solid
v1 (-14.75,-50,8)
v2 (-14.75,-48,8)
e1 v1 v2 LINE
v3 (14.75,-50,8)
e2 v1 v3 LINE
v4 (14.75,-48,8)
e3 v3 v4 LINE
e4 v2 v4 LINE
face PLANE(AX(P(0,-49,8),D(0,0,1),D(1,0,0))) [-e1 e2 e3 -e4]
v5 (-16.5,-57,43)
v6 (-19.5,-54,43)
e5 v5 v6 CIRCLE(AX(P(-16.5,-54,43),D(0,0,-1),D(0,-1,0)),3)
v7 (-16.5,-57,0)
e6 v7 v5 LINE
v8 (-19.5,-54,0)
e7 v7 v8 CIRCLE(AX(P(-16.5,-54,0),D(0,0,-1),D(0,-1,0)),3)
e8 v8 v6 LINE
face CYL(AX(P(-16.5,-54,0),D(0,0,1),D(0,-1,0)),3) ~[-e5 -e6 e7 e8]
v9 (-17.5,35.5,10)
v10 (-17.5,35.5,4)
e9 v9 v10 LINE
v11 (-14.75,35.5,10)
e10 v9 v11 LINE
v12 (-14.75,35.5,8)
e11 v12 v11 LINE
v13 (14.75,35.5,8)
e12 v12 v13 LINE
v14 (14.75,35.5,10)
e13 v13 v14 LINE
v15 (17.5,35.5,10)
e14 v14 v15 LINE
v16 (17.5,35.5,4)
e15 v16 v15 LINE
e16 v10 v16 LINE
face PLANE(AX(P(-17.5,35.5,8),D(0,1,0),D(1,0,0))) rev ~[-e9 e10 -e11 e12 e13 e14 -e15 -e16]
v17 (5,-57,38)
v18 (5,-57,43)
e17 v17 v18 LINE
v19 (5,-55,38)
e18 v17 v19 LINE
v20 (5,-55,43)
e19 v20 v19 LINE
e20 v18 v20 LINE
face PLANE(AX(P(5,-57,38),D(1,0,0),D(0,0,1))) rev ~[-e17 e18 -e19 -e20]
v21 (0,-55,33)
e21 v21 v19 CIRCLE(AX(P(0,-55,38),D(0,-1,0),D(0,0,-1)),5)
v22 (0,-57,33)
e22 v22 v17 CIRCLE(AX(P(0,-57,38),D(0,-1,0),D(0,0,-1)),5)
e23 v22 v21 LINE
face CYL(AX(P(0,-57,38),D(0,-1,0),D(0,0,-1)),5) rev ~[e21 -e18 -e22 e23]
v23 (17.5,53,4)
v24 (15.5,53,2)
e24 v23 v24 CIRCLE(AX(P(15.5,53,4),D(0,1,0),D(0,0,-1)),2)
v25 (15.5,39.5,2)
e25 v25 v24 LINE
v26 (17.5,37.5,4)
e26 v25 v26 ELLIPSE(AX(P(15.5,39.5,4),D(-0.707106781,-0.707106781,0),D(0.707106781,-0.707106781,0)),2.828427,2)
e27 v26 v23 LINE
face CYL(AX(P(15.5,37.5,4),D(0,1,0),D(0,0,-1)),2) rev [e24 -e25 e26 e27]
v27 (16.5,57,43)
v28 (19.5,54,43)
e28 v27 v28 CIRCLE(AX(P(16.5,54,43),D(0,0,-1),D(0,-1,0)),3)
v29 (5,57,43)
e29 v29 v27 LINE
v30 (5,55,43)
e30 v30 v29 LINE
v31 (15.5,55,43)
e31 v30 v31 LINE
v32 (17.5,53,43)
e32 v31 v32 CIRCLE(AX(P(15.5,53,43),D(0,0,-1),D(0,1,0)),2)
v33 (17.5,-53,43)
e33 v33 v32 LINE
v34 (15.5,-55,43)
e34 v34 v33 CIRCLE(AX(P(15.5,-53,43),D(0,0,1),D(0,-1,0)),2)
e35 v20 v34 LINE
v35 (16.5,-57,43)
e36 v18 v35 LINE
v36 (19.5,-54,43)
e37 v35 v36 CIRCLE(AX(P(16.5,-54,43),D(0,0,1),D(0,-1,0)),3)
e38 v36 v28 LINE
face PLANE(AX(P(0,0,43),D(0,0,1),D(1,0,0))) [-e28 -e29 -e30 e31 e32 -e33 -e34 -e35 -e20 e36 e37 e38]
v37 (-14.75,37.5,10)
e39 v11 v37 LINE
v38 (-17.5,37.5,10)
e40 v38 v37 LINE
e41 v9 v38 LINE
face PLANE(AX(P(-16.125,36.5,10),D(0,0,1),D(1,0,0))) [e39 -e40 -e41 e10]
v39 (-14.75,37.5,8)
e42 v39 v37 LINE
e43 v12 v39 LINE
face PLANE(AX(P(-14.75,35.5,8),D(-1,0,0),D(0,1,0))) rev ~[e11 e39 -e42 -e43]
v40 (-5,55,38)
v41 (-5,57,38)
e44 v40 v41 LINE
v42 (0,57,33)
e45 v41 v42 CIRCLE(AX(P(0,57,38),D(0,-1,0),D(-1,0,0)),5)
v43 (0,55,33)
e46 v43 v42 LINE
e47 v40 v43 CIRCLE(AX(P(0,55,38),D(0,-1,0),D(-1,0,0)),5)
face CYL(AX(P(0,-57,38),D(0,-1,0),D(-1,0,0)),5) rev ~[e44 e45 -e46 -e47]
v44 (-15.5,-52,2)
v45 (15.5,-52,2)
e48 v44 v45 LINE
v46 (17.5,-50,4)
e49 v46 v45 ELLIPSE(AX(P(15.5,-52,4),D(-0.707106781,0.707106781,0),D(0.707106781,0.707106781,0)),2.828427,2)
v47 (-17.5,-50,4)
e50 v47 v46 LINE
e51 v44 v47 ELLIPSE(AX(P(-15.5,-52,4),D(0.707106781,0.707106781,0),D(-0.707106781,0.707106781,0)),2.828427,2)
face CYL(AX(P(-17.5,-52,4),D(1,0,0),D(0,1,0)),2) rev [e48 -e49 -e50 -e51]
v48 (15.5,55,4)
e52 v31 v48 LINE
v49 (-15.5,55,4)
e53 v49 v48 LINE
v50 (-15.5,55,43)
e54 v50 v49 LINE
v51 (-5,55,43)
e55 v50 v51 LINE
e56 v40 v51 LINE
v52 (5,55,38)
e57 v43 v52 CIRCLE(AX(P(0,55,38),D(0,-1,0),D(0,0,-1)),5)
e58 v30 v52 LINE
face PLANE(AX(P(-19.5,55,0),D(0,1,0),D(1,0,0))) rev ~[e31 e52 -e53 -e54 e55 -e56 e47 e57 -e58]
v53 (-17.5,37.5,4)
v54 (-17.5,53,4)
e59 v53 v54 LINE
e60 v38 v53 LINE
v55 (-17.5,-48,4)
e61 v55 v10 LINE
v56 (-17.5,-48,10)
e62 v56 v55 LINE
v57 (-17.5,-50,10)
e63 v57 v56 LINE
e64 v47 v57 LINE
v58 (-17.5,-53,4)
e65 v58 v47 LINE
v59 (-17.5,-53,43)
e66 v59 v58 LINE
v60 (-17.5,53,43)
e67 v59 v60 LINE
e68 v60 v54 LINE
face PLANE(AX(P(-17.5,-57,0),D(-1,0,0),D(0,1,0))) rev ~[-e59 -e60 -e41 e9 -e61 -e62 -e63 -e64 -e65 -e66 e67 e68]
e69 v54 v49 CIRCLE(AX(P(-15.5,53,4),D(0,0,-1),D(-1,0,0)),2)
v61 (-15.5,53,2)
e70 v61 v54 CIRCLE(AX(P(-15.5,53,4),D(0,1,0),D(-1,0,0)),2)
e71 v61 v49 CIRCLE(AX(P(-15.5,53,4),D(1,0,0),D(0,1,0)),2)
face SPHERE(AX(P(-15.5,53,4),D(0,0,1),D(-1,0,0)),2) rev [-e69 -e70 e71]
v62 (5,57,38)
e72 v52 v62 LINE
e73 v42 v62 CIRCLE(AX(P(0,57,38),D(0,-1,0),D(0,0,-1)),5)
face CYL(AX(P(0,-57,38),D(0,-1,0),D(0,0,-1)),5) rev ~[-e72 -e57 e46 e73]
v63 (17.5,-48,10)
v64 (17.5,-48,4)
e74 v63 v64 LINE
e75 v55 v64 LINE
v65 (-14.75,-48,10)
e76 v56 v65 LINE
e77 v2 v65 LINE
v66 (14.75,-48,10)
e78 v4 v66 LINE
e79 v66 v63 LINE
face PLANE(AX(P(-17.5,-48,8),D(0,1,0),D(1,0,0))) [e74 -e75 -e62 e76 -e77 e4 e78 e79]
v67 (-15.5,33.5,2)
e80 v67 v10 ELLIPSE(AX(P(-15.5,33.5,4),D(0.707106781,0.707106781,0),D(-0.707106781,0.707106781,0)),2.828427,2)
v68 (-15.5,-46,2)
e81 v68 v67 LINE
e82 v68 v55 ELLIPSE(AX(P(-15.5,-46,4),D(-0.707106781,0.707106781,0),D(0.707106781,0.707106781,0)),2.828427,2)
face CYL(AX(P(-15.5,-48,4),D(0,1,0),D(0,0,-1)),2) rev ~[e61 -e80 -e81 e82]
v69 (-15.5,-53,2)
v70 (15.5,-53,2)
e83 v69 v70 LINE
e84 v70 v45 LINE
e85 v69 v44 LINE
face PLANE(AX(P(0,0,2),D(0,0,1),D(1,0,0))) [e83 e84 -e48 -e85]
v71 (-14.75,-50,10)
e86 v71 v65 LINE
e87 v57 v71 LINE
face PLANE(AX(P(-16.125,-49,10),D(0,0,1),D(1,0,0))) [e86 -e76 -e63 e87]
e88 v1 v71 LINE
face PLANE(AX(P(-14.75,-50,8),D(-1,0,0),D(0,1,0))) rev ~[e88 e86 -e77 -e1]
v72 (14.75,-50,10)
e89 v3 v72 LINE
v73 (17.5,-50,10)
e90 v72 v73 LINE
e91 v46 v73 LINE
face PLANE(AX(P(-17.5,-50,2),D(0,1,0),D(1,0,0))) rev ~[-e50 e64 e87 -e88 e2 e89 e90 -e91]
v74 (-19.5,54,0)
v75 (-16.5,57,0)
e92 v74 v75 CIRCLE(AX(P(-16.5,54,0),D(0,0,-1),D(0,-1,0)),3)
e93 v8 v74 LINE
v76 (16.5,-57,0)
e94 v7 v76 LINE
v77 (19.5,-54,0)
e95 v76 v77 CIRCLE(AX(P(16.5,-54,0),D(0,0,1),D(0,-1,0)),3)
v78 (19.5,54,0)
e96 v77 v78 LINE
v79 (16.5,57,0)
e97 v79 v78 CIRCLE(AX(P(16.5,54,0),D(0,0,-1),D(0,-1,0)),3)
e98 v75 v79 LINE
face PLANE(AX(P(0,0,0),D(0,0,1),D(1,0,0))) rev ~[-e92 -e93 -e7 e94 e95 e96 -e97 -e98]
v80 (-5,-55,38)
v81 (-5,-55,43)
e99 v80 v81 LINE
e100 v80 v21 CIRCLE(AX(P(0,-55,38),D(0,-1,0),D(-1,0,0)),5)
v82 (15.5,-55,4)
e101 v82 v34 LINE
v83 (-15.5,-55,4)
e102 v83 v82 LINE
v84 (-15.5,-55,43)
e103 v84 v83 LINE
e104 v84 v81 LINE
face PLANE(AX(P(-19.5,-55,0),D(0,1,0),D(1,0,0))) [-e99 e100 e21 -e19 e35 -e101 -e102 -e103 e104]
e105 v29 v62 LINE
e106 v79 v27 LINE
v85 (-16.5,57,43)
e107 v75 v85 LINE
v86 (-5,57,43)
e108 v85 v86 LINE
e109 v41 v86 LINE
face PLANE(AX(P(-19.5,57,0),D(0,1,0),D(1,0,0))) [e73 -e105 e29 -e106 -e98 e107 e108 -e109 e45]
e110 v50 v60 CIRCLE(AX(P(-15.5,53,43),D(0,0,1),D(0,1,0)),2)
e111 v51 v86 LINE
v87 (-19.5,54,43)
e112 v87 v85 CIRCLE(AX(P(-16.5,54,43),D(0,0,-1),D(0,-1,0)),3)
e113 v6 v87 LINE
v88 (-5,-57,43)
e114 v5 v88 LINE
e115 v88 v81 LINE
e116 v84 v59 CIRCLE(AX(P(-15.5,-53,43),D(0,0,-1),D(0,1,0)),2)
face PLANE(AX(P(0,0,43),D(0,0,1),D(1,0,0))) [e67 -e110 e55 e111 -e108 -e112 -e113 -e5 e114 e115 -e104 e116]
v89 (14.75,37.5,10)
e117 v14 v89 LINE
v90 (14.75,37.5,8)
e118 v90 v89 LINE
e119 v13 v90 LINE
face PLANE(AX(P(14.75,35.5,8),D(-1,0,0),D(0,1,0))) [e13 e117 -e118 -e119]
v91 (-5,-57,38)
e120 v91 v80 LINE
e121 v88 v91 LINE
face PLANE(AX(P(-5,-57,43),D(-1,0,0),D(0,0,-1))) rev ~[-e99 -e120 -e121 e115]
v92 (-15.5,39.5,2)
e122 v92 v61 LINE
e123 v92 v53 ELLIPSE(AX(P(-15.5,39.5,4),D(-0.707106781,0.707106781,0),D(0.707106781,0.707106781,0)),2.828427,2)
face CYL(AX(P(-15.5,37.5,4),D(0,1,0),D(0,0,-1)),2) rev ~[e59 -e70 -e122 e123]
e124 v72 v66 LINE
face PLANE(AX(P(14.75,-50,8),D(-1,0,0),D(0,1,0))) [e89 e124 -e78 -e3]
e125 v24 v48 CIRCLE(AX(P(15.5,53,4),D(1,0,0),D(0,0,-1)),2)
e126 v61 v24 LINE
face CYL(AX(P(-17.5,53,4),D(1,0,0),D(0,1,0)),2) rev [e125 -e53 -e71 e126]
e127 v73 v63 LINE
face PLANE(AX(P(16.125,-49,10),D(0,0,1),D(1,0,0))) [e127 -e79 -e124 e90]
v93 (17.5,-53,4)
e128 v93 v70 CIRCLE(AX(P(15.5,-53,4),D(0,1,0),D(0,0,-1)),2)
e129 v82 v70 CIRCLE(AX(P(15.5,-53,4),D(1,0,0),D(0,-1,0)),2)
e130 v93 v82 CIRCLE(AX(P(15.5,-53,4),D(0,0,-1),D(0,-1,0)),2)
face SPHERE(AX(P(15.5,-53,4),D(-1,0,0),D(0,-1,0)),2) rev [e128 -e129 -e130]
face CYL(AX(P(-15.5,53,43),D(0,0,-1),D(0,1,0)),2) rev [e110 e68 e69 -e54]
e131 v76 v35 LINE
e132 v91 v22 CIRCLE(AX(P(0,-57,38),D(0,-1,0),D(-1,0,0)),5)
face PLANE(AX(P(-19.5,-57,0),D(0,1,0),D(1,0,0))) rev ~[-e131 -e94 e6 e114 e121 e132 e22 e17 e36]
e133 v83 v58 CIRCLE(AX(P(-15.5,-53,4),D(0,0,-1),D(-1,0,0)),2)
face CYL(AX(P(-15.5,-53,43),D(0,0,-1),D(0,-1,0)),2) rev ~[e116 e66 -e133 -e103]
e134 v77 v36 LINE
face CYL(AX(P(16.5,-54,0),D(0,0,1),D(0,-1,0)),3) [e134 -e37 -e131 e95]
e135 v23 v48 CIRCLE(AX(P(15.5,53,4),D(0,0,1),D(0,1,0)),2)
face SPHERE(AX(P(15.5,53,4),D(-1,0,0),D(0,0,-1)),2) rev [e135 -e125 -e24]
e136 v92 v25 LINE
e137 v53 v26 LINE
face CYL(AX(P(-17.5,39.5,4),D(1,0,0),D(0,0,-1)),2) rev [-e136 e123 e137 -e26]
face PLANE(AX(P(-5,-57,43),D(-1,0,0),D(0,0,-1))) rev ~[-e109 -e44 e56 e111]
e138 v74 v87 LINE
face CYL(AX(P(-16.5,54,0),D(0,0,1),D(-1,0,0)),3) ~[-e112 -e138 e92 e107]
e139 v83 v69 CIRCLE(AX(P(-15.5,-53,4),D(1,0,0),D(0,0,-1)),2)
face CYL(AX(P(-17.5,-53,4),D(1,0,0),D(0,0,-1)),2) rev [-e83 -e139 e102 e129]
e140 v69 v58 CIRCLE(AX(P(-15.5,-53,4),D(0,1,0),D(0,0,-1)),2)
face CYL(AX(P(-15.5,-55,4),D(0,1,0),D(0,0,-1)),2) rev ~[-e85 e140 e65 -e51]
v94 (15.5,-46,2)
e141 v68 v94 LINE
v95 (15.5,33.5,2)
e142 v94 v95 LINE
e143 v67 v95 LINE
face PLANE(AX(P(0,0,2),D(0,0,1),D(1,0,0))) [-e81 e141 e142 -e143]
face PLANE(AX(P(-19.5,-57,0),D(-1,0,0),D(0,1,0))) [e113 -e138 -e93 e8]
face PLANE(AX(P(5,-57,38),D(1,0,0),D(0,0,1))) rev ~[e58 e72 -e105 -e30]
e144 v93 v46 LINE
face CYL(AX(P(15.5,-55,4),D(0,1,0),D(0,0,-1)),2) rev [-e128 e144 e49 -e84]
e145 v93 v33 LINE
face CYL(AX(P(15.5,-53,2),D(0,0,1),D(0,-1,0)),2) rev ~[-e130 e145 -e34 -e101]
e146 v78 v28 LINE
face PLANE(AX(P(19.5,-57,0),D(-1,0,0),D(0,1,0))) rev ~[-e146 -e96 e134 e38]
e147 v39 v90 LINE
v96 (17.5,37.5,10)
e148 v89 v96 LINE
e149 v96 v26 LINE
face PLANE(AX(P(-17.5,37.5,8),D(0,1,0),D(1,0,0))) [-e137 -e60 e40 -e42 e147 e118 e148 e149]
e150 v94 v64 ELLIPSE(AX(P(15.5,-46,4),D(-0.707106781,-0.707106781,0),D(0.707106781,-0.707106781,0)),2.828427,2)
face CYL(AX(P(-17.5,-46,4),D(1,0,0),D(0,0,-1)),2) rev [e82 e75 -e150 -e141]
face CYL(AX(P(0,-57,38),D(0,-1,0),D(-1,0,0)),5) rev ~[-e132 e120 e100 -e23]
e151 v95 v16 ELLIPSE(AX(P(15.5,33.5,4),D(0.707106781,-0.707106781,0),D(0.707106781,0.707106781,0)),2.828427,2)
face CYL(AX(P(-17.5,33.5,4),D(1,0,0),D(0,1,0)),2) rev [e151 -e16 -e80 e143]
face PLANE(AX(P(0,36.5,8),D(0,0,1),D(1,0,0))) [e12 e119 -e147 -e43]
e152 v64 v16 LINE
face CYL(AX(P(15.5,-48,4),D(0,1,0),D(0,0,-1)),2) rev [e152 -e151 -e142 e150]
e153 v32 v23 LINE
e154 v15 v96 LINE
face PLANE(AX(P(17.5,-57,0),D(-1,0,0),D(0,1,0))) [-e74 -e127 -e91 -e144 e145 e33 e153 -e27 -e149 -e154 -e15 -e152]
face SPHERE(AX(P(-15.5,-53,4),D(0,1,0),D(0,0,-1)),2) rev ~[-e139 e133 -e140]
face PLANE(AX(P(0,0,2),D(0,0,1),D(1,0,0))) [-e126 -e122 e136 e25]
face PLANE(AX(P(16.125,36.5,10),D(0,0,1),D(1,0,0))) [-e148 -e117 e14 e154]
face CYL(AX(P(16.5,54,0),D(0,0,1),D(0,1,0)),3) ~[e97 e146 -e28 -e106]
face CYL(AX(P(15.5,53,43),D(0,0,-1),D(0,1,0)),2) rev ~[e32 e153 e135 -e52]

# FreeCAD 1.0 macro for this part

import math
import FreeCAD as App
import Part
import Sketcher

V = App.Vector
Q = App.Units.Quantity


def edges_at(feature, points):
    """Names of the edges that pass closest to the given points."""
    edges = feature.Shape.Edges
    near = lambda p: min(range(len(edges)), key=lambda i: edges[i].distToShape(Part.Vertex(*p))[0])
    return sorted({f"Edge{near(p) + 1}" for p in points})


def faces_at(feature, points):
    """Names of the faces that lie closest to the given points."""
    faces = feature.Shape.Faces
    near = lambda p: min(range(len(faces)), key=lambda i: faces[i].distToShape(Part.Vertex(*p))[0])
    return sorted({f"Face{near(p) + 1}" for p in points})


def add_polygon(sketch, points):
    """Adds a closed chain of lines whose ends are joined by coincident constraints."""
    first, n = sketch.GeometryCount, len(points)
    for a, b in zip(points, points[1:] + points[:1]):
        sketch.addGeometry(Part.LineSegment(App.Vector(*a, 0), App.Vector(*b, 0)), False)
    for i in range(n):
        sketch.addConstraint(Sketcher.Constraint("Coincident", first + i, 2, first + (i + 1) % n, 1))

doc = App.newDocument("Part")
body = doc.addObject("PartDesign::Body", "Body")

# Sketch on XY plane
sketch1 = doc.addObject("Sketcher::SketchObject", "Sketch")
body.addObject(sketch1)
sketch1.AttachmentSupport = (doc.XY_Plane, [""])
sketch1.MapMode = "FlatFace"
add_polygon(sketch1, [(-19.5, 57), (-19.5, -57), (19.5, -57), (19.5, 57)])  # lines 0-3
sketch1.addConstraint([
    Sketcher.Constraint("Vertical", 0),
    Sketcher.Constraint("Horizontal", 1),
    Sketcher.Constraint("Vertical", 2),
    Sketcher.Constraint("Horizontal", 3),
    Sketcher.Constraint("Symmetric", 0, 2, 2, 2, -1, 1),
    Sketcher.Constraint("DistanceX", 1, 1, 1, 2, Q("39 mm")),
    Sketcher.Constraint("DistanceY", 0, 2, 0, 1, Q("114 mm")),
])
pad1 = doc.addObject("PartDesign::Pad", "Pad")
body.addObject(pad1)
pad1.Profile = sketch1
pad1.Length = 43
doc.recompute()

thickness = doc.addObject("PartDesign::Thickness", "Thickness")
body.addObject(thickness)
thickness.Base = (pad1, faces_at(pad1, [(0, 0, 43)]))
thickness.Value = 2
thickness.Reversed = True
thickness.Join = "Arc"

# Sketch on XY plane
sketch2 = doc.addObject("Sketcher::SketchObject", "Sketch001")
body.addObject(sketch2)
sketch2.AttachmentSupport = (doc.XY_Plane, [""])
sketch2.MapMode = "FlatFace"
sketch2.AttachmentOffset = App.Placement(V(0, 0, 2), App.Rotation())
add_polygon(sketch2, [(-17.5, 37.5), (-17.5, 35.5), (17.5, 35.5), (17.5, 37.5)])  # lines 0-3
add_polygon(sketch2, [(-17.5, -48), (-17.5, -50), (17.5, -50), (17.5, -48)])  # lines 4-7
sketch2.addConstraint([
    Sketcher.Constraint("Vertical", 0),
    Sketcher.Constraint("Horizontal", 1),
    Sketcher.Constraint("Vertical", 2),
    Sketcher.Constraint("Horizontal", 3),
    Sketcher.Constraint("Vertical", 4),
    Sketcher.Constraint("Horizontal", 5),
    Sketcher.Constraint("Vertical", 6),
    Sketcher.Constraint("Horizontal", 7),
    Sketcher.Constraint("Vertical", 3, 2, 4, 2),
    Sketcher.Constraint("Vertical", 2, 2, 5, 2),
    Sketcher.Constraint("Equal", 2, 4),
    Sketcher.Constraint("DistanceX", 1, 1, 1, 2, Q("35 mm")),
    Sketcher.Constraint("DistanceY", 0, 2, 0, 1, Q("2 mm")),
    Sketcher.Constraint("DistanceY", 4, 2, -1, 1, Q("50 mm")),
    Sketcher.Constraint("DistanceX", 0, 2, -1, 1, Q("17.5 mm")),
    Sketcher.Constraint("DistanceY", -1, 1, 0, 2, Q("35.5 mm")),
])
pad2 = doc.addObject("PartDesign::Pad", "Pad001")
body.addObject(pad2)
pad2.Profile = sketch2
pad2.Length = 6

# Sketch on XY plane
sketch3 = doc.addObject("Sketcher::SketchObject", "Sketch002")
body.addObject(sketch3)
sketch3.AttachmentSupport = (doc.XY_Plane, [""])
sketch3.MapMode = "FlatFace"
sketch3.AttachmentOffset = App.Placement(V(0, 0, 8), App.Rotation())
add_polygon(sketch3, [(-17.5, 37.5), (-17.5, 35.5), (-14.75, 35.5), (-14.75, 37.5)])  # lines 0-3
add_polygon(sketch3, [(14.75, 37.5), (14.75, 35.5), (17.5, 35.5), (17.5, 37.5)])  # lines 4-7
add_polygon(sketch3, [(-17.5, -48), (-17.5, -50), (-14.75, -50), (-14.75, -48)])  # lines 8-11
add_polygon(sketch3, [(14.75, -48), (14.75, -50), (17.5, -50), (17.5, -48)])  # lines 12-15
sketch3.addConstraint([
    Sketcher.Constraint("Vertical", 0),
    Sketcher.Constraint("Horizontal", 1),
    Sketcher.Constraint("Vertical", 2),
    Sketcher.Constraint("Horizontal", 3),
    Sketcher.Constraint("Vertical", 4),
    Sketcher.Constraint("Horizontal", 5),
    Sketcher.Constraint("Vertical", 6),
    Sketcher.Constraint("Horizontal", 7),
    Sketcher.Constraint("Vertical", 8),
    Sketcher.Constraint("Horizontal", 9),
    Sketcher.Constraint("Vertical", 10),
    Sketcher.Constraint("Horizontal", 11),
    Sketcher.Constraint("Vertical", 12),
    Sketcher.Constraint("Horizontal", 13),
    Sketcher.Constraint("Vertical", 14),
    Sketcher.Constraint("Horizontal", 15),
    Sketcher.Constraint("Symmetric", 1, 2, 4, 2, -2),
    Sketcher.Constraint("Symmetric", 3, 2, 6, 2, -2),
    Sketcher.Constraint("Symmetric", 9, 2, 12, 2, -2),
    Sketcher.Constraint("Symmetric", 11, 2, 14, 2, -2),
    Sketcher.Constraint("Vertical", 3, 2, 8, 2),
    Sketcher.Constraint("Vertical", 2, 2, 9, 2),
    Sketcher.Constraint("Equal", 6, 8),
    Sketcher.Constraint("DistanceY", 0, 2, 0, 1, Q("2 mm")),
    Sketcher.Constraint("DistanceY", 8, 2, -1, 1, Q("50 mm")),
    Sketcher.Constraint("DistanceX", 0, 2, 5, 2, Q("35 mm")),
    Sketcher.Constraint("DistanceX", 1, 1, 1, 2, Q("2.75 mm")),
    Sketcher.Constraint("DistanceY", -1, 1, 0, 2, Q("35.5 mm")),
])
pad3 = doc.addObject("PartDesign::Pad", "Pad002")
body.addObject(pad3)
pad3.Profile = sketch3
pad3.Length = 2
doc.recompute()

fillet = doc.addObject("PartDesign::Fillet", "Fillet")
body.addObject(fillet)
fillet.Base = (pad3, edges_at(pad3, [
    (-17.5, 55, 22.5),
    (-17.5, 46.25, 2),
    (0, 55, 2),
    (-17.5, -6.25, 2),
    (0, -48, 2),
    (-17.5, -52.5, 2),
    (0, -50, 2),
    (0, -55, 2),
    (-17.5, -55, 22.5),
    (17.5, -55, 22.5),
    (17.5, -52.5, 2),
    (17.5, -6.25, 2),
    (0, 37.5, 2),
    (0, 35.5, 2),
    (17.5, 46.25, 2),
    (17.5, 55, 22.5),
]))
fillet.Radius = 2

# Sketch on XZ plane
sketch4 = doc.addObject("Sketcher::SketchObject", "Sketch003")
body.addObject(sketch4)
sketch4.AttachmentSupport = (doc.XZ_Plane, [""])
sketch4.MapMode = "FlatFace"
sketch4.AttachmentOffset = App.Placement(V(0, 0, 57), App.Rotation())
sketch4.addGeometry([
    Part.LineSegment(V(-5, 43, 0), V(-5, 38, 0)),  # 0
    Part.ArcOfCircle(Part.Circle(V(0, 38, 0), V(0, 0, 1), 5), math.radians(180), math.radians(270)),  # 1
    Part.ArcOfCircle(Part.Circle(V(0, 38, 0), V(0, 0, 1), 5), math.radians(-90), math.radians(0)),  # 2
    Part.LineSegment(V(5, 38, 0), V(5, 43, 0)),  # 3
    Part.LineSegment(V(5, 43, 0), V(-5, 43, 0)),  # 4
], False)
sketch4.addConstraint([
    Sketcher.Constraint("Tangent", 0, 2, 1, 1),
    Sketcher.Constraint("Tangent", 1, 2, 2, 1),
    Sketcher.Constraint("Tangent", 2, 2, 3, 1),
    Sketcher.Constraint("Coincident", 3, 2, 4, 1),
    Sketcher.Constraint("Coincident", 4, 2, 0, 1),
    Sketcher.Constraint("Vertical", 0),
    Sketcher.Constraint("Vertical", 3),
    Sketcher.Constraint("Horizontal", 4),
    Sketcher.Constraint("Equal", 1, 2),
    Sketcher.Constraint("PointOnObject", 1, 3, -2),
    Sketcher.Constraint("PointOnObject", 1, 2, -2),
    Sketcher.Constraint("Radius", 1, Q("5 mm")),
    Sketcher.Constraint("DistanceY", 0, 2, 0, 1, Q("5 mm")),
    Sketcher.Constraint("DistanceY", -1, 1, 1, 3, Q("38 mm")),
])
pocket1 = doc.addObject("PartDesign::Pocket", "Pocket")
body.addObject(pocket1)
pocket1.Profile = sketch4
pocket1.Type = "ThroughAll"
doc.recompute()

fillet2 = doc.addObject("PartDesign::Fillet", "Fillet001")
body.addObject(fillet2)
fillet2.Base = (pocket1, edges_at(pocket1, [
    (19.5, -57, 21.5),
    (19.5, 57, 21.5),
    (-19.5, 57, 21.5),
    (-19.5, -57, 21.5),
]))
fillet2.Radius = 3

doc.recompute()
